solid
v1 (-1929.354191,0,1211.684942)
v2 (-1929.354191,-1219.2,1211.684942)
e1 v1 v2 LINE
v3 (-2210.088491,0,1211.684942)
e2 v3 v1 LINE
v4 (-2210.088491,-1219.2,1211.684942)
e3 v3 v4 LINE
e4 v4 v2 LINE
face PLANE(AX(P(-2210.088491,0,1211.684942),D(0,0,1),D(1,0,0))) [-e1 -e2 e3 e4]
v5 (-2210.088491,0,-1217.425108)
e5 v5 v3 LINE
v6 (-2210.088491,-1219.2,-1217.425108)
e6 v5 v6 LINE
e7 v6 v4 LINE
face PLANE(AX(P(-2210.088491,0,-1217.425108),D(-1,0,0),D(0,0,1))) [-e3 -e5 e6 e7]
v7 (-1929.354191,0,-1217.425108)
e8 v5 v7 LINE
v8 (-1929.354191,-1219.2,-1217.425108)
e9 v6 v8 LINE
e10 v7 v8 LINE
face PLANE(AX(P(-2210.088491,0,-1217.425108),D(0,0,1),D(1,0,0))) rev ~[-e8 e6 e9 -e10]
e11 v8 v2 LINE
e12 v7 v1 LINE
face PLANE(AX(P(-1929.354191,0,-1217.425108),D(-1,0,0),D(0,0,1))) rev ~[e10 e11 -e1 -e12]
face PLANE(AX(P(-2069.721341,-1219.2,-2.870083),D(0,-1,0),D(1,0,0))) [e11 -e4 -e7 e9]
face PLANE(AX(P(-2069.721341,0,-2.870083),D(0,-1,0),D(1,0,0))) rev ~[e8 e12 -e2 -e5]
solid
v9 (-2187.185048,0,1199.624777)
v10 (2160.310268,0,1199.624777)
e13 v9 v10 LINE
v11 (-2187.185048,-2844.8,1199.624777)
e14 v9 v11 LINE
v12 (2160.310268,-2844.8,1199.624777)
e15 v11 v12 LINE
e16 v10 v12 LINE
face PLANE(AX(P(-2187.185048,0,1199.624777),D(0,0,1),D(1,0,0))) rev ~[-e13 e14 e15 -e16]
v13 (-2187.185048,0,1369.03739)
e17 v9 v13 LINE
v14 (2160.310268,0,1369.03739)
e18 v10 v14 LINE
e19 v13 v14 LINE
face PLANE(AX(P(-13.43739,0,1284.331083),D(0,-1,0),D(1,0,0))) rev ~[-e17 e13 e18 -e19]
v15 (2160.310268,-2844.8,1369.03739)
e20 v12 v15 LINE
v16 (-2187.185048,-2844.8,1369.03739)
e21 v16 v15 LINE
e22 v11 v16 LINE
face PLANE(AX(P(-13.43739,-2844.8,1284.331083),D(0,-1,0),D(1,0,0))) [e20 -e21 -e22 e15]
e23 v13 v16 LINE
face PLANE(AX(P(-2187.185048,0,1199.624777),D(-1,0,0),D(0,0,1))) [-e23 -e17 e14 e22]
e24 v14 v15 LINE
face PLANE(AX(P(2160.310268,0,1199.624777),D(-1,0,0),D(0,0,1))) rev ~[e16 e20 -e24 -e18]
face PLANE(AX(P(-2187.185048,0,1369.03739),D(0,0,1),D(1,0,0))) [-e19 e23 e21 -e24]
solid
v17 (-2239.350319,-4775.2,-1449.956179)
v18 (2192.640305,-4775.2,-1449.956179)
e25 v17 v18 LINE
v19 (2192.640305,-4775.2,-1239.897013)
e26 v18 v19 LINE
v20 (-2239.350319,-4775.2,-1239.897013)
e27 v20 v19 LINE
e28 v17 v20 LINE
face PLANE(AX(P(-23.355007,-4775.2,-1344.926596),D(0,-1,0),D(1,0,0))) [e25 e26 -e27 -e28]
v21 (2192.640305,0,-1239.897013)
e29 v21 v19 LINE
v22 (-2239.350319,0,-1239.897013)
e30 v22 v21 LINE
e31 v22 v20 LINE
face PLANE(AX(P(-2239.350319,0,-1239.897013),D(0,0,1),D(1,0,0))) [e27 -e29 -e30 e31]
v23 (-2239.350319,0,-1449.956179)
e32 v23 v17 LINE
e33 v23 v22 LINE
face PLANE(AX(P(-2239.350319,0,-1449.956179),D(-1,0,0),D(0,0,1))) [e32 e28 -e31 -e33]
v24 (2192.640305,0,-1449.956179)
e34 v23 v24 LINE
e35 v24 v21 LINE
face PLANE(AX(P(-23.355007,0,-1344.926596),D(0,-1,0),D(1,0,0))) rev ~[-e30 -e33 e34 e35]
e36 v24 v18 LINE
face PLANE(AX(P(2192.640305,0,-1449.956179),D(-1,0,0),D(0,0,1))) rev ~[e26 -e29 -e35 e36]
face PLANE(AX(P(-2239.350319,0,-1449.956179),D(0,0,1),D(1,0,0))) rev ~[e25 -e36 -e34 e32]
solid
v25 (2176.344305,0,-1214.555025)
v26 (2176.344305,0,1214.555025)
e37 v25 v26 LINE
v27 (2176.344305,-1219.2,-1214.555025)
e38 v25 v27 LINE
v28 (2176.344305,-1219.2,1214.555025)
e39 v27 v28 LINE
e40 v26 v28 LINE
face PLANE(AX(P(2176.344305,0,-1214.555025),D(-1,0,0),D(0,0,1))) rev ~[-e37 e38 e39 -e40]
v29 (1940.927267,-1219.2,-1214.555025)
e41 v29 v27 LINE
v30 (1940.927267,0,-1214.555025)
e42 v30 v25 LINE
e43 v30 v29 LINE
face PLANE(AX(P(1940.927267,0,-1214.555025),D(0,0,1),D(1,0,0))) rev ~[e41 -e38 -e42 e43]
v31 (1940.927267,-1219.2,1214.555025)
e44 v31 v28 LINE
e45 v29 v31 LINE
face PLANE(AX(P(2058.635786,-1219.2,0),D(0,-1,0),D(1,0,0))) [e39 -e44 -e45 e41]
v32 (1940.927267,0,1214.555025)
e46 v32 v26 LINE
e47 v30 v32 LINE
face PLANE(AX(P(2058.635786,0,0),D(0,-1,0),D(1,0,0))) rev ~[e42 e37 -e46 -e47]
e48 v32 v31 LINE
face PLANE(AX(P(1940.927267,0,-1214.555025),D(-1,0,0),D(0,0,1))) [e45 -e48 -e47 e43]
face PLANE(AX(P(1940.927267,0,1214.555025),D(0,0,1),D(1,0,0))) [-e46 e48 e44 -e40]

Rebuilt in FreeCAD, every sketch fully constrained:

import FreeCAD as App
import Part
import Sketcher

V = App.Vector
Q = App.Units.Quantity

doc = App.newDocument("Part")
params = doc.addObject("Spreadsheet::Sheet", "Params")
for row, (alias, value) in enumerate([
    ("pad1_length", "48 in"),
    ("pad2_length", "112 in"),
    ("pad3_length", "188 in"),
], start=1):
    params.set(f"A{row}", alias)
    params.set(f"B{row}", "=" + value)
    params.setAlias(f"B{row}", alias)

body = doc.addObject("PartDesign::Body", "Body")
body.AllowCompound = True

sketch1 = body.newObject("Sketcher::SketchObject", "Sketch")
sketch1.AttachmentSupport = (doc.getObject("XZ_Plane"), [""])
sketch1.MapMode = "FlatFace"
sketch1.addGeometry(Part.LineSegment(V(-2210, 1212, 0), V(-2210, -1217, 0)), False)
sketch1.addGeometry(Part.LineSegment(V(-2210, -1217, 0), V(-1929, -1217, 0)), False)
sketch1.addGeometry(Part.LineSegment(V(-1929, -1217, 0), V(-1929, 1212, 0)), False)
sketch1.addGeometry(Part.LineSegment(V(-1929, 1212, 0), V(-2210, 1212, 0)), False)
sketch1.addGeometry(Part.LineSegment(V(1941, 1215, 0), V(1941, -1215, 0)), False)
sketch1.addGeometry(Part.LineSegment(V(1941, -1215, 0), V(2176, -1215, 0)), False)
sketch1.addGeometry(Part.LineSegment(V(2176, -1215, 0), V(2176, 1215, 0)), False)
sketch1.addGeometry(Part.LineSegment(V(2176, 1215, 0), V(1941, 1215, 0)), False)
sketch1.addConstraint(Sketcher.Constraint("Coincident", 0, 2, 1, 1))
sketch1.addConstraint(Sketcher.Constraint("Coincident", 1, 2, 2, 1))
sketch1.addConstraint(Sketcher.Constraint("Coincident", 2, 2, 3, 1))
sketch1.addConstraint(Sketcher.Constraint("Coincident", 3, 2, 0, 1))
sketch1.addConstraint(Sketcher.Constraint("Coincident", 4, 2, 5, 1))
sketch1.addConstraint(Sketcher.Constraint("Coincident", 5, 2, 6, 1))
sketch1.addConstraint(Sketcher.Constraint("Coincident", 6, 2, 7, 1))
sketch1.addConstraint(Sketcher.Constraint("Coincident", 7, 2, 4, 1))
sketch1.addConstraint(Sketcher.Constraint("Vertical", 0))
sketch1.addConstraint(Sketcher.Constraint("Horizontal", 1))
sketch1.addConstraint(Sketcher.Constraint("Vertical", 2))
sketch1.addConstraint(Sketcher.Constraint("Horizontal", 3))
sketch1.addConstraint(Sketcher.Constraint("Vertical", 4))
sketch1.addConstraint(Sketcher.Constraint("Horizontal", 5))
sketch1.addConstraint(Sketcher.Constraint("Vertical", 6))
sketch1.addConstraint(Sketcher.Constraint("Horizontal", 7))
sketch1.addConstraint(Sketcher.Constraint("Equal", 2, 4))
sketch1.addConstraint(Sketcher.Constraint("DistanceX", 1, 1, 1, 2, Q("280.7343 mm")))
sketch1.addConstraint(Sketcher.Constraint("DistanceX", 5, 1, 5, 2, Q("235.417038 mm")))
sketch1.addConstraint(Sketcher.Constraint("DistanceY", 0, 2, 0, 1, Q("2429.11005 mm")))
sketch1.addConstraint(Sketcher.Constraint("DistanceX", 0, 2, -1, 1, Q("2210.088491 mm")))
sketch1.addConstraint(Sketcher.Constraint("DistanceY", 0, 2, -1, 1, Q("1217.425108 mm")))
sketch1.addConstraint(Sketcher.Constraint("DistanceX", -1, 1, 4, 2, Q("1940.927267 mm")))
sketch1.addConstraint(Sketcher.Constraint("DistanceY", 4, 2, -1, 1, Q("1214.555025 mm")))
pad1 = body.newObject("PartDesign::Pad", "Pad")
pad1.Profile = sketch1
pad1.setExpression("Length", "Params.pad1_length")
body2 = doc.addObject("PartDesign::Body", "Body001")

sketch2 = body2.newObject("Sketcher::SketchObject", "Sketch001")
sketch2.AttachmentSupport = (doc.getObject("XZ_Plane001"), [""])
sketch2.MapMode = "FlatFace"
sketch2.addGeometry(Part.LineSegment(V(-2187, 1369, 0), V(-2187, 1200, 0)), False)
sketch2.addGeometry(Part.LineSegment(V(-2187, 1200, 0), V(2160, 1200, 0)), False)
sketch2.addGeometry(Part.LineSegment(V(2160, 1200, 0), V(2160, 1369, 0)), False)
sketch2.addGeometry(Part.LineSegment(V(2160, 1369, 0), V(-2187, 1369, 0)), False)
sketch2.addConstraint(Sketcher.Constraint("Coincident", 0, 2, 1, 1))
sketch2.addConstraint(Sketcher.Constraint("Coincident", 1, 2, 2, 1))
sketch2.addConstraint(Sketcher.Constraint("Coincident", 2, 2, 3, 1))
sketch2.addConstraint(Sketcher.Constraint("Coincident", 3, 2, 0, 1))
sketch2.addConstraint(Sketcher.Constraint("Vertical", 0))
sketch2.addConstraint(Sketcher.Constraint("Horizontal", 1))
sketch2.addConstraint(Sketcher.Constraint("Vertical", 2))
sketch2.addConstraint(Sketcher.Constraint("Horizontal", 3))
sketch2.addConstraint(Sketcher.Constraint("DistanceX", 1, 1, 1, 2, Q("4347.495317 mm")))
sketch2.addConstraint(Sketcher.Constraint("DistanceY", 0, 2, 0, 1, Q("169.412613 mm")))
sketch2.addConstraint(Sketcher.Constraint("DistanceX", 0, 2, -1, 1, Q("2187.185048 mm")))
sketch2.addConstraint(Sketcher.Constraint("DistanceY", -1, 1, 2, 2, Q("1369.03739 mm")))
pad2 = body2.newObject("PartDesign::Pad", "Pad001")
pad2.Profile = sketch2
pad2.setExpression("Length", "Params.pad2_length")
body3 = doc.addObject("PartDesign::Body", "Body002")

sketch3 = body3.newObject("Sketcher::SketchObject", "Sketch002")
sketch3.AttachmentSupport = (doc.getObject("XZ_Plane002"), [""])
sketch3.MapMode = "FlatFace"
sketch3.addGeometry(Part.LineSegment(V(-2239, -1240, 0), V(-2239, -1450, 0)), False)
sketch3.addGeometry(Part.LineSegment(V(-2239, -1450, 0), V(2193, -1450, 0)), False)
sketch3.addGeometry(Part.LineSegment(V(2193, -1450, 0), V(2193, -1240, 0)), False)
sketch3.addGeometry(Part.LineSegment(V(2193, -1240, 0), V(-2239, -1240, 0)), False)
sketch3.addConstraint(Sketcher.Constraint("Coincident", 0, 2, 1, 1))
sketch3.addConstraint(Sketcher.Constraint("Coincident", 1, 2, 2, 1))
sketch3.addConstraint(Sketcher.Constraint("Coincident", 2, 2, 3, 1))
sketch3.addConstraint(Sketcher.Constraint("Coincident", 3, 2, 0, 1))
sketch3.addConstraint(Sketcher.Constraint("Vertical", 0))
sketch3.addConstraint(Sketcher.Constraint("Horizontal", 1))
sketch3.addConstraint(Sketcher.Constraint("Vertical", 2))
sketch3.addConstraint(Sketcher.Constraint("Horizontal", 3))
sketch3.addConstraint(Sketcher.Constraint("DistanceX", 1, 1, 1, 2, Q("4431.990624 mm")))
sketch3.addConstraint(Sketcher.Constraint("DistanceY", 0, 2, 0, 1, Q("210.059166 mm")))
sketch3.addConstraint(Sketcher.Constraint("DistanceX", 0, 2, -1, 1, Q("2239.350319 mm")))
sketch3.addConstraint(Sketcher.Constraint("DistanceY", 0, 2, -1, 1, Q("1449.956179 mm")))
pad3 = body3.newObject("PartDesign::Pad", "Pad002")
pad3.Profile = sketch3
pad3.setExpression("Length", "Params.pad3_length")

doc.recompute()
